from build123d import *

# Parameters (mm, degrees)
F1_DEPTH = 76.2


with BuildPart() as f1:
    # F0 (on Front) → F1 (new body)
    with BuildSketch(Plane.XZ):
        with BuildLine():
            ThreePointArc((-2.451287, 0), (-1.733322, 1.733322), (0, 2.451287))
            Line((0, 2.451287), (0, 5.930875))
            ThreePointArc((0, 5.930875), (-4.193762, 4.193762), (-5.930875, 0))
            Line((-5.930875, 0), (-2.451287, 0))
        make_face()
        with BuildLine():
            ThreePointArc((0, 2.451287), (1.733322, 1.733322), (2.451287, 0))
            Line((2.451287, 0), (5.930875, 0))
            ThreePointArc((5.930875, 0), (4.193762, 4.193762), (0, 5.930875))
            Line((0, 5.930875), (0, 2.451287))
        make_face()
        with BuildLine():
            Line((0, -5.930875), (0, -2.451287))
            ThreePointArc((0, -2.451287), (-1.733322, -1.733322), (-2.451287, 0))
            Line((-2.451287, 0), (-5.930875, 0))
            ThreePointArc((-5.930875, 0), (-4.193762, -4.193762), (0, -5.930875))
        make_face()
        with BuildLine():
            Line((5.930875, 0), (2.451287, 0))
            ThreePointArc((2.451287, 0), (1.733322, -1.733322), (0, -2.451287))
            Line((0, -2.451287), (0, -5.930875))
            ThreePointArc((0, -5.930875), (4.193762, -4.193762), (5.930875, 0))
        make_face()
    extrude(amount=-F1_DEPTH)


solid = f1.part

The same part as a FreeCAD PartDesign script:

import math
import FreeCAD as App
import Part
import Sketcher

doc = App.newDocument("Part")
params = doc.addObject("Spreadsheet::Sheet", "Params")
for row, (alias, value) in enumerate([
    ("pad1_length", "3 in"),
], start=1):
    params.set(f"A{row}", alias)
    params.set(f"B{row}", "=" + value)
    params.setAlias(f"B{row}", alias)

body = doc.addObject("PartDesign::Body", "Body")

sketch1 = doc.addObject("Sketcher::SketchObject", "Sketch")
body.addObject(sketch1)
sketch1.AttachmentSupport = (doc.XZ_Plane, [""])
sketch1.MapMode = "FlatFace"
sketch1.addGeometry(Part.ArcOfCircle(Part.Circle(App.Vector(0, 0, 0), App.Vector(0, 0, 1), 5.9), math.radians(0), math.radians(90)), False)
sketch1.addGeometry(Part.ArcOfCircle(Part.Circle(App.Vector(0, 0, 0), App.Vector(0, 0, 1), 5.9), math.radians(90), math.radians(180)), False)
sketch1.addGeometry(Part.ArcOfCircle(Part.Circle(App.Vector(0, 0, 0), App.Vector(0, 0, 1), 5.9), math.radians(180), math.radians(270)), False)
sketch1.addGeometry(Part.ArcOfCircle(Part.Circle(App.Vector(0, 0, 0), App.Vector(0, 0, 1), 5.9), math.radians(-90), math.radians(0)), False)
sketch1.addGeometry(Part.ArcOfCircle(Part.Circle(App.Vector(0, 0, 0), App.Vector(0, 0, 1), 2.5), math.radians(90), math.radians(180)), False)
sketch1.addGeometry(Part.ArcOfCircle(Part.Circle(App.Vector(0, 0, 0), App.Vector(0, 0, 1), 2.5), math.radians(0), math.radians(90)), False)
sketch1.addGeometry(Part.ArcOfCircle(Part.Circle(App.Vector(0, 0, 0), App.Vector(0, 0, 1), 2.5), math.radians(-90), math.radians(0)), False)
sketch1.addGeometry(Part.ArcOfCircle(Part.Circle(App.Vector(0, 0, 0), App.Vector(0, 0, 1), 2.5), math.radians(180), math.radians(270)), False)
sketch1.addConstraint(Sketcher.Constraint("Tangent", 0, 2, 1, 1))
sketch1.addConstraint(Sketcher.Constraint("Tangent", 1, 2, 2, 1))
sketch1.addConstraint(Sketcher.Constraint("Tangent", 2, 2, 3, 1))
sketch1.addConstraint(Sketcher.Constraint("Tangent", 3, 2, 0, 1))
sketch1.addConstraint(Sketcher.Constraint("Tangent", 4, 1, 5, 2))
sketch1.addConstraint(Sketcher.Constraint("Tangent", 5, 1, 6, 2))
sketch1.addConstraint(Sketcher.Constraint("Tangent", 6, 1, 7, 2))
sketch1.addConstraint(Sketcher.Constraint("Tangent", 7, 1, 4, 2))
sketch1.addConstraint(Sketcher.Constraint("Coincident", 0, 3, -1, 1))
sketch1.addConstraint(Sketcher.Constraint("Coincident", 4, 3, -1, 1))
sketch1.addConstraint(Sketcher.Constraint("Equal", 0, 1))
sketch1.addConstraint(Sketcher.Constraint("Equal", 4, 5))
sketch1.addConstraint(Sketcher.Constraint("PointOnObject", 0, 2, -2))
sketch1.addConstraint(Sketcher.Constraint("PointOnObject", 1, 2, -1))
sketch1.addConstraint(Sketcher.Constraint("PointOnObject", 2, 2, -2))
sketch1.addConstraint(Sketcher.Constraint("PointOnObject", 3, 2, -1))
sketch1.addConstraint(Sketcher.Constraint("PointOnObject", 4, 1, -2))
sketch1.addConstraint(Sketcher.Constraint("PointOnObject", 5, 1, -1))
sketch1.addConstraint(Sketcher.Constraint("PointOnObject", 6, 1, -2))
sketch1.addConstraint(Sketcher.Constraint("PointOnObject", 7, 1, -1))
sketch1.addConstraint(Sketcher.Constraint("Radius", 0, 5.930875))
sketch1.addConstraint(Sketcher.Constraint("Radius", 4, 2.451286))
pad1 = doc.addObject("PartDesign::Pad", "Pad")
body.addObject(pad1)
pad1.Profile = sketch1
pad1.setExpression("Length", "Params.pad1_length")
pad1.Reversed = True

doc.recompute()
